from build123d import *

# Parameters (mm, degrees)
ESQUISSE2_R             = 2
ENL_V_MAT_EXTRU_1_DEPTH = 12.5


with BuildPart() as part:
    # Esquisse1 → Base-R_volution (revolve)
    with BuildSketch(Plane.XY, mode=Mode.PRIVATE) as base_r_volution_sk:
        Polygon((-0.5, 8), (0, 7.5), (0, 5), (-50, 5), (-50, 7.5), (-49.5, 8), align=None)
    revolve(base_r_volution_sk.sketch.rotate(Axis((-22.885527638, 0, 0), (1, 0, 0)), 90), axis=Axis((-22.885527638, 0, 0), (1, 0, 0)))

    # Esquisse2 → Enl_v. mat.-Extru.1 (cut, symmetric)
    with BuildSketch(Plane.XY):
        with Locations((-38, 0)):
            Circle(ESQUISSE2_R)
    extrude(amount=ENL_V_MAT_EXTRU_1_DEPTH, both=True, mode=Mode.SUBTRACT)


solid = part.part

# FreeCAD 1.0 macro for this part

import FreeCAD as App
import Part
import Sketcher

V = App.Vector
Q = App.Units.Quantity

doc = App.newDocument("Part")
body = doc.addObject("PartDesign::Body", "Body")

sketch1 = body.newObject("Sketcher::SketchObject", "Sketch")
sketch1.AttachmentSupport = (doc.getObject("XY_Plane"), [""])
sketch1.MapMode = "FlatFace"
sketch1.addGeometry([
    Part.LineSegment(V(0, 7.5, 0), V(-0.5, 8, 0)),
    Part.LineSegment(V(-0.5, 8, 0), V(-49.5, 8, 0)),
    Part.LineSegment(V(-49.5, 8, 0), V(-50, 7.5, 0)),
    Part.LineSegment(V(-50, 7.5, 0), V(-50, 5, 0)),
    Part.LineSegment(V(-50, 5, 0), V(0, 5, 0)),
    Part.LineSegment(V(0, 5, 0), V(0, 7.5, 0)),
], False)
sketch1.addConstraint([
    Sketcher.Constraint("Coincident", 0, 2, 1, 1),
    Sketcher.Constraint("Coincident", 1, 2, 2, 1),
    Sketcher.Constraint("Coincident", 2, 2, 3, 1),
    Sketcher.Constraint("Coincident", 3, 2, 4, 1),
    Sketcher.Constraint("Coincident", 4, 2, 5, 1),
    Sketcher.Constraint("Coincident", 5, 2, 0, 1),
    Sketcher.Constraint("Horizontal", 1),
    Sketcher.Constraint("Vertical", 3),
    Sketcher.Constraint("Horizontal", 4),
    Sketcher.Constraint("Vertical", 5),
    Sketcher.Constraint("PointOnObject", 4, 2, -2),
    Sketcher.Constraint("Perpendicular", 0, 2),
    Sketcher.Constraint("Horizontal", 2, 2, 5, 2),
    Sketcher.Constraint("Equal", 0, 2),
    Sketcher.Constraint("DistanceX", 1, 2, 1, 1, Q("49 mm")),
    Sketcher.Constraint("DistanceX", 4, 1, 4, 2, Q("50 mm")),
    Sketcher.Constraint("DistanceY", 3, 2, 3, 1, Q("2.5 mm")),
    Sketcher.Constraint("DistanceY", -1, 1, 0, 2, Q("8 mm")),
])
revolution = body.newObject("PartDesign::Revolution", "Revolution")
revolution.Profile = sketch1
revolution.ReferenceAxis = (sketch1, ["H_Axis"])
revolution.Angle = 360

sketch2 = body.newObject("Sketcher::SketchObject", "Sketch001")
sketch2.AttachmentSupport = (doc.getObject("XY_Plane"), [""])
sketch2.MapMode = "FlatFace"
sketch2.addGeometry(Part.Circle(V(-38, 0, 0), V(0, 0, 1), 2), False)
sketch2.addConstraint([
    Sketcher.Constraint("PointOnObject", 0, 3, -1),
    Sketcher.Constraint("Diameter", 0, Q("4 mm")),
    Sketcher.Constraint("DistanceX", 0, 3, -1, 1, Q("38 mm")),
])
pocket1 = body.newObject("PartDesign::Pocket", "Pocket")
pocket1.Profile = sketch2
pocket1.Length = 25
pocket1.Midplane = True

doc.recompute()
